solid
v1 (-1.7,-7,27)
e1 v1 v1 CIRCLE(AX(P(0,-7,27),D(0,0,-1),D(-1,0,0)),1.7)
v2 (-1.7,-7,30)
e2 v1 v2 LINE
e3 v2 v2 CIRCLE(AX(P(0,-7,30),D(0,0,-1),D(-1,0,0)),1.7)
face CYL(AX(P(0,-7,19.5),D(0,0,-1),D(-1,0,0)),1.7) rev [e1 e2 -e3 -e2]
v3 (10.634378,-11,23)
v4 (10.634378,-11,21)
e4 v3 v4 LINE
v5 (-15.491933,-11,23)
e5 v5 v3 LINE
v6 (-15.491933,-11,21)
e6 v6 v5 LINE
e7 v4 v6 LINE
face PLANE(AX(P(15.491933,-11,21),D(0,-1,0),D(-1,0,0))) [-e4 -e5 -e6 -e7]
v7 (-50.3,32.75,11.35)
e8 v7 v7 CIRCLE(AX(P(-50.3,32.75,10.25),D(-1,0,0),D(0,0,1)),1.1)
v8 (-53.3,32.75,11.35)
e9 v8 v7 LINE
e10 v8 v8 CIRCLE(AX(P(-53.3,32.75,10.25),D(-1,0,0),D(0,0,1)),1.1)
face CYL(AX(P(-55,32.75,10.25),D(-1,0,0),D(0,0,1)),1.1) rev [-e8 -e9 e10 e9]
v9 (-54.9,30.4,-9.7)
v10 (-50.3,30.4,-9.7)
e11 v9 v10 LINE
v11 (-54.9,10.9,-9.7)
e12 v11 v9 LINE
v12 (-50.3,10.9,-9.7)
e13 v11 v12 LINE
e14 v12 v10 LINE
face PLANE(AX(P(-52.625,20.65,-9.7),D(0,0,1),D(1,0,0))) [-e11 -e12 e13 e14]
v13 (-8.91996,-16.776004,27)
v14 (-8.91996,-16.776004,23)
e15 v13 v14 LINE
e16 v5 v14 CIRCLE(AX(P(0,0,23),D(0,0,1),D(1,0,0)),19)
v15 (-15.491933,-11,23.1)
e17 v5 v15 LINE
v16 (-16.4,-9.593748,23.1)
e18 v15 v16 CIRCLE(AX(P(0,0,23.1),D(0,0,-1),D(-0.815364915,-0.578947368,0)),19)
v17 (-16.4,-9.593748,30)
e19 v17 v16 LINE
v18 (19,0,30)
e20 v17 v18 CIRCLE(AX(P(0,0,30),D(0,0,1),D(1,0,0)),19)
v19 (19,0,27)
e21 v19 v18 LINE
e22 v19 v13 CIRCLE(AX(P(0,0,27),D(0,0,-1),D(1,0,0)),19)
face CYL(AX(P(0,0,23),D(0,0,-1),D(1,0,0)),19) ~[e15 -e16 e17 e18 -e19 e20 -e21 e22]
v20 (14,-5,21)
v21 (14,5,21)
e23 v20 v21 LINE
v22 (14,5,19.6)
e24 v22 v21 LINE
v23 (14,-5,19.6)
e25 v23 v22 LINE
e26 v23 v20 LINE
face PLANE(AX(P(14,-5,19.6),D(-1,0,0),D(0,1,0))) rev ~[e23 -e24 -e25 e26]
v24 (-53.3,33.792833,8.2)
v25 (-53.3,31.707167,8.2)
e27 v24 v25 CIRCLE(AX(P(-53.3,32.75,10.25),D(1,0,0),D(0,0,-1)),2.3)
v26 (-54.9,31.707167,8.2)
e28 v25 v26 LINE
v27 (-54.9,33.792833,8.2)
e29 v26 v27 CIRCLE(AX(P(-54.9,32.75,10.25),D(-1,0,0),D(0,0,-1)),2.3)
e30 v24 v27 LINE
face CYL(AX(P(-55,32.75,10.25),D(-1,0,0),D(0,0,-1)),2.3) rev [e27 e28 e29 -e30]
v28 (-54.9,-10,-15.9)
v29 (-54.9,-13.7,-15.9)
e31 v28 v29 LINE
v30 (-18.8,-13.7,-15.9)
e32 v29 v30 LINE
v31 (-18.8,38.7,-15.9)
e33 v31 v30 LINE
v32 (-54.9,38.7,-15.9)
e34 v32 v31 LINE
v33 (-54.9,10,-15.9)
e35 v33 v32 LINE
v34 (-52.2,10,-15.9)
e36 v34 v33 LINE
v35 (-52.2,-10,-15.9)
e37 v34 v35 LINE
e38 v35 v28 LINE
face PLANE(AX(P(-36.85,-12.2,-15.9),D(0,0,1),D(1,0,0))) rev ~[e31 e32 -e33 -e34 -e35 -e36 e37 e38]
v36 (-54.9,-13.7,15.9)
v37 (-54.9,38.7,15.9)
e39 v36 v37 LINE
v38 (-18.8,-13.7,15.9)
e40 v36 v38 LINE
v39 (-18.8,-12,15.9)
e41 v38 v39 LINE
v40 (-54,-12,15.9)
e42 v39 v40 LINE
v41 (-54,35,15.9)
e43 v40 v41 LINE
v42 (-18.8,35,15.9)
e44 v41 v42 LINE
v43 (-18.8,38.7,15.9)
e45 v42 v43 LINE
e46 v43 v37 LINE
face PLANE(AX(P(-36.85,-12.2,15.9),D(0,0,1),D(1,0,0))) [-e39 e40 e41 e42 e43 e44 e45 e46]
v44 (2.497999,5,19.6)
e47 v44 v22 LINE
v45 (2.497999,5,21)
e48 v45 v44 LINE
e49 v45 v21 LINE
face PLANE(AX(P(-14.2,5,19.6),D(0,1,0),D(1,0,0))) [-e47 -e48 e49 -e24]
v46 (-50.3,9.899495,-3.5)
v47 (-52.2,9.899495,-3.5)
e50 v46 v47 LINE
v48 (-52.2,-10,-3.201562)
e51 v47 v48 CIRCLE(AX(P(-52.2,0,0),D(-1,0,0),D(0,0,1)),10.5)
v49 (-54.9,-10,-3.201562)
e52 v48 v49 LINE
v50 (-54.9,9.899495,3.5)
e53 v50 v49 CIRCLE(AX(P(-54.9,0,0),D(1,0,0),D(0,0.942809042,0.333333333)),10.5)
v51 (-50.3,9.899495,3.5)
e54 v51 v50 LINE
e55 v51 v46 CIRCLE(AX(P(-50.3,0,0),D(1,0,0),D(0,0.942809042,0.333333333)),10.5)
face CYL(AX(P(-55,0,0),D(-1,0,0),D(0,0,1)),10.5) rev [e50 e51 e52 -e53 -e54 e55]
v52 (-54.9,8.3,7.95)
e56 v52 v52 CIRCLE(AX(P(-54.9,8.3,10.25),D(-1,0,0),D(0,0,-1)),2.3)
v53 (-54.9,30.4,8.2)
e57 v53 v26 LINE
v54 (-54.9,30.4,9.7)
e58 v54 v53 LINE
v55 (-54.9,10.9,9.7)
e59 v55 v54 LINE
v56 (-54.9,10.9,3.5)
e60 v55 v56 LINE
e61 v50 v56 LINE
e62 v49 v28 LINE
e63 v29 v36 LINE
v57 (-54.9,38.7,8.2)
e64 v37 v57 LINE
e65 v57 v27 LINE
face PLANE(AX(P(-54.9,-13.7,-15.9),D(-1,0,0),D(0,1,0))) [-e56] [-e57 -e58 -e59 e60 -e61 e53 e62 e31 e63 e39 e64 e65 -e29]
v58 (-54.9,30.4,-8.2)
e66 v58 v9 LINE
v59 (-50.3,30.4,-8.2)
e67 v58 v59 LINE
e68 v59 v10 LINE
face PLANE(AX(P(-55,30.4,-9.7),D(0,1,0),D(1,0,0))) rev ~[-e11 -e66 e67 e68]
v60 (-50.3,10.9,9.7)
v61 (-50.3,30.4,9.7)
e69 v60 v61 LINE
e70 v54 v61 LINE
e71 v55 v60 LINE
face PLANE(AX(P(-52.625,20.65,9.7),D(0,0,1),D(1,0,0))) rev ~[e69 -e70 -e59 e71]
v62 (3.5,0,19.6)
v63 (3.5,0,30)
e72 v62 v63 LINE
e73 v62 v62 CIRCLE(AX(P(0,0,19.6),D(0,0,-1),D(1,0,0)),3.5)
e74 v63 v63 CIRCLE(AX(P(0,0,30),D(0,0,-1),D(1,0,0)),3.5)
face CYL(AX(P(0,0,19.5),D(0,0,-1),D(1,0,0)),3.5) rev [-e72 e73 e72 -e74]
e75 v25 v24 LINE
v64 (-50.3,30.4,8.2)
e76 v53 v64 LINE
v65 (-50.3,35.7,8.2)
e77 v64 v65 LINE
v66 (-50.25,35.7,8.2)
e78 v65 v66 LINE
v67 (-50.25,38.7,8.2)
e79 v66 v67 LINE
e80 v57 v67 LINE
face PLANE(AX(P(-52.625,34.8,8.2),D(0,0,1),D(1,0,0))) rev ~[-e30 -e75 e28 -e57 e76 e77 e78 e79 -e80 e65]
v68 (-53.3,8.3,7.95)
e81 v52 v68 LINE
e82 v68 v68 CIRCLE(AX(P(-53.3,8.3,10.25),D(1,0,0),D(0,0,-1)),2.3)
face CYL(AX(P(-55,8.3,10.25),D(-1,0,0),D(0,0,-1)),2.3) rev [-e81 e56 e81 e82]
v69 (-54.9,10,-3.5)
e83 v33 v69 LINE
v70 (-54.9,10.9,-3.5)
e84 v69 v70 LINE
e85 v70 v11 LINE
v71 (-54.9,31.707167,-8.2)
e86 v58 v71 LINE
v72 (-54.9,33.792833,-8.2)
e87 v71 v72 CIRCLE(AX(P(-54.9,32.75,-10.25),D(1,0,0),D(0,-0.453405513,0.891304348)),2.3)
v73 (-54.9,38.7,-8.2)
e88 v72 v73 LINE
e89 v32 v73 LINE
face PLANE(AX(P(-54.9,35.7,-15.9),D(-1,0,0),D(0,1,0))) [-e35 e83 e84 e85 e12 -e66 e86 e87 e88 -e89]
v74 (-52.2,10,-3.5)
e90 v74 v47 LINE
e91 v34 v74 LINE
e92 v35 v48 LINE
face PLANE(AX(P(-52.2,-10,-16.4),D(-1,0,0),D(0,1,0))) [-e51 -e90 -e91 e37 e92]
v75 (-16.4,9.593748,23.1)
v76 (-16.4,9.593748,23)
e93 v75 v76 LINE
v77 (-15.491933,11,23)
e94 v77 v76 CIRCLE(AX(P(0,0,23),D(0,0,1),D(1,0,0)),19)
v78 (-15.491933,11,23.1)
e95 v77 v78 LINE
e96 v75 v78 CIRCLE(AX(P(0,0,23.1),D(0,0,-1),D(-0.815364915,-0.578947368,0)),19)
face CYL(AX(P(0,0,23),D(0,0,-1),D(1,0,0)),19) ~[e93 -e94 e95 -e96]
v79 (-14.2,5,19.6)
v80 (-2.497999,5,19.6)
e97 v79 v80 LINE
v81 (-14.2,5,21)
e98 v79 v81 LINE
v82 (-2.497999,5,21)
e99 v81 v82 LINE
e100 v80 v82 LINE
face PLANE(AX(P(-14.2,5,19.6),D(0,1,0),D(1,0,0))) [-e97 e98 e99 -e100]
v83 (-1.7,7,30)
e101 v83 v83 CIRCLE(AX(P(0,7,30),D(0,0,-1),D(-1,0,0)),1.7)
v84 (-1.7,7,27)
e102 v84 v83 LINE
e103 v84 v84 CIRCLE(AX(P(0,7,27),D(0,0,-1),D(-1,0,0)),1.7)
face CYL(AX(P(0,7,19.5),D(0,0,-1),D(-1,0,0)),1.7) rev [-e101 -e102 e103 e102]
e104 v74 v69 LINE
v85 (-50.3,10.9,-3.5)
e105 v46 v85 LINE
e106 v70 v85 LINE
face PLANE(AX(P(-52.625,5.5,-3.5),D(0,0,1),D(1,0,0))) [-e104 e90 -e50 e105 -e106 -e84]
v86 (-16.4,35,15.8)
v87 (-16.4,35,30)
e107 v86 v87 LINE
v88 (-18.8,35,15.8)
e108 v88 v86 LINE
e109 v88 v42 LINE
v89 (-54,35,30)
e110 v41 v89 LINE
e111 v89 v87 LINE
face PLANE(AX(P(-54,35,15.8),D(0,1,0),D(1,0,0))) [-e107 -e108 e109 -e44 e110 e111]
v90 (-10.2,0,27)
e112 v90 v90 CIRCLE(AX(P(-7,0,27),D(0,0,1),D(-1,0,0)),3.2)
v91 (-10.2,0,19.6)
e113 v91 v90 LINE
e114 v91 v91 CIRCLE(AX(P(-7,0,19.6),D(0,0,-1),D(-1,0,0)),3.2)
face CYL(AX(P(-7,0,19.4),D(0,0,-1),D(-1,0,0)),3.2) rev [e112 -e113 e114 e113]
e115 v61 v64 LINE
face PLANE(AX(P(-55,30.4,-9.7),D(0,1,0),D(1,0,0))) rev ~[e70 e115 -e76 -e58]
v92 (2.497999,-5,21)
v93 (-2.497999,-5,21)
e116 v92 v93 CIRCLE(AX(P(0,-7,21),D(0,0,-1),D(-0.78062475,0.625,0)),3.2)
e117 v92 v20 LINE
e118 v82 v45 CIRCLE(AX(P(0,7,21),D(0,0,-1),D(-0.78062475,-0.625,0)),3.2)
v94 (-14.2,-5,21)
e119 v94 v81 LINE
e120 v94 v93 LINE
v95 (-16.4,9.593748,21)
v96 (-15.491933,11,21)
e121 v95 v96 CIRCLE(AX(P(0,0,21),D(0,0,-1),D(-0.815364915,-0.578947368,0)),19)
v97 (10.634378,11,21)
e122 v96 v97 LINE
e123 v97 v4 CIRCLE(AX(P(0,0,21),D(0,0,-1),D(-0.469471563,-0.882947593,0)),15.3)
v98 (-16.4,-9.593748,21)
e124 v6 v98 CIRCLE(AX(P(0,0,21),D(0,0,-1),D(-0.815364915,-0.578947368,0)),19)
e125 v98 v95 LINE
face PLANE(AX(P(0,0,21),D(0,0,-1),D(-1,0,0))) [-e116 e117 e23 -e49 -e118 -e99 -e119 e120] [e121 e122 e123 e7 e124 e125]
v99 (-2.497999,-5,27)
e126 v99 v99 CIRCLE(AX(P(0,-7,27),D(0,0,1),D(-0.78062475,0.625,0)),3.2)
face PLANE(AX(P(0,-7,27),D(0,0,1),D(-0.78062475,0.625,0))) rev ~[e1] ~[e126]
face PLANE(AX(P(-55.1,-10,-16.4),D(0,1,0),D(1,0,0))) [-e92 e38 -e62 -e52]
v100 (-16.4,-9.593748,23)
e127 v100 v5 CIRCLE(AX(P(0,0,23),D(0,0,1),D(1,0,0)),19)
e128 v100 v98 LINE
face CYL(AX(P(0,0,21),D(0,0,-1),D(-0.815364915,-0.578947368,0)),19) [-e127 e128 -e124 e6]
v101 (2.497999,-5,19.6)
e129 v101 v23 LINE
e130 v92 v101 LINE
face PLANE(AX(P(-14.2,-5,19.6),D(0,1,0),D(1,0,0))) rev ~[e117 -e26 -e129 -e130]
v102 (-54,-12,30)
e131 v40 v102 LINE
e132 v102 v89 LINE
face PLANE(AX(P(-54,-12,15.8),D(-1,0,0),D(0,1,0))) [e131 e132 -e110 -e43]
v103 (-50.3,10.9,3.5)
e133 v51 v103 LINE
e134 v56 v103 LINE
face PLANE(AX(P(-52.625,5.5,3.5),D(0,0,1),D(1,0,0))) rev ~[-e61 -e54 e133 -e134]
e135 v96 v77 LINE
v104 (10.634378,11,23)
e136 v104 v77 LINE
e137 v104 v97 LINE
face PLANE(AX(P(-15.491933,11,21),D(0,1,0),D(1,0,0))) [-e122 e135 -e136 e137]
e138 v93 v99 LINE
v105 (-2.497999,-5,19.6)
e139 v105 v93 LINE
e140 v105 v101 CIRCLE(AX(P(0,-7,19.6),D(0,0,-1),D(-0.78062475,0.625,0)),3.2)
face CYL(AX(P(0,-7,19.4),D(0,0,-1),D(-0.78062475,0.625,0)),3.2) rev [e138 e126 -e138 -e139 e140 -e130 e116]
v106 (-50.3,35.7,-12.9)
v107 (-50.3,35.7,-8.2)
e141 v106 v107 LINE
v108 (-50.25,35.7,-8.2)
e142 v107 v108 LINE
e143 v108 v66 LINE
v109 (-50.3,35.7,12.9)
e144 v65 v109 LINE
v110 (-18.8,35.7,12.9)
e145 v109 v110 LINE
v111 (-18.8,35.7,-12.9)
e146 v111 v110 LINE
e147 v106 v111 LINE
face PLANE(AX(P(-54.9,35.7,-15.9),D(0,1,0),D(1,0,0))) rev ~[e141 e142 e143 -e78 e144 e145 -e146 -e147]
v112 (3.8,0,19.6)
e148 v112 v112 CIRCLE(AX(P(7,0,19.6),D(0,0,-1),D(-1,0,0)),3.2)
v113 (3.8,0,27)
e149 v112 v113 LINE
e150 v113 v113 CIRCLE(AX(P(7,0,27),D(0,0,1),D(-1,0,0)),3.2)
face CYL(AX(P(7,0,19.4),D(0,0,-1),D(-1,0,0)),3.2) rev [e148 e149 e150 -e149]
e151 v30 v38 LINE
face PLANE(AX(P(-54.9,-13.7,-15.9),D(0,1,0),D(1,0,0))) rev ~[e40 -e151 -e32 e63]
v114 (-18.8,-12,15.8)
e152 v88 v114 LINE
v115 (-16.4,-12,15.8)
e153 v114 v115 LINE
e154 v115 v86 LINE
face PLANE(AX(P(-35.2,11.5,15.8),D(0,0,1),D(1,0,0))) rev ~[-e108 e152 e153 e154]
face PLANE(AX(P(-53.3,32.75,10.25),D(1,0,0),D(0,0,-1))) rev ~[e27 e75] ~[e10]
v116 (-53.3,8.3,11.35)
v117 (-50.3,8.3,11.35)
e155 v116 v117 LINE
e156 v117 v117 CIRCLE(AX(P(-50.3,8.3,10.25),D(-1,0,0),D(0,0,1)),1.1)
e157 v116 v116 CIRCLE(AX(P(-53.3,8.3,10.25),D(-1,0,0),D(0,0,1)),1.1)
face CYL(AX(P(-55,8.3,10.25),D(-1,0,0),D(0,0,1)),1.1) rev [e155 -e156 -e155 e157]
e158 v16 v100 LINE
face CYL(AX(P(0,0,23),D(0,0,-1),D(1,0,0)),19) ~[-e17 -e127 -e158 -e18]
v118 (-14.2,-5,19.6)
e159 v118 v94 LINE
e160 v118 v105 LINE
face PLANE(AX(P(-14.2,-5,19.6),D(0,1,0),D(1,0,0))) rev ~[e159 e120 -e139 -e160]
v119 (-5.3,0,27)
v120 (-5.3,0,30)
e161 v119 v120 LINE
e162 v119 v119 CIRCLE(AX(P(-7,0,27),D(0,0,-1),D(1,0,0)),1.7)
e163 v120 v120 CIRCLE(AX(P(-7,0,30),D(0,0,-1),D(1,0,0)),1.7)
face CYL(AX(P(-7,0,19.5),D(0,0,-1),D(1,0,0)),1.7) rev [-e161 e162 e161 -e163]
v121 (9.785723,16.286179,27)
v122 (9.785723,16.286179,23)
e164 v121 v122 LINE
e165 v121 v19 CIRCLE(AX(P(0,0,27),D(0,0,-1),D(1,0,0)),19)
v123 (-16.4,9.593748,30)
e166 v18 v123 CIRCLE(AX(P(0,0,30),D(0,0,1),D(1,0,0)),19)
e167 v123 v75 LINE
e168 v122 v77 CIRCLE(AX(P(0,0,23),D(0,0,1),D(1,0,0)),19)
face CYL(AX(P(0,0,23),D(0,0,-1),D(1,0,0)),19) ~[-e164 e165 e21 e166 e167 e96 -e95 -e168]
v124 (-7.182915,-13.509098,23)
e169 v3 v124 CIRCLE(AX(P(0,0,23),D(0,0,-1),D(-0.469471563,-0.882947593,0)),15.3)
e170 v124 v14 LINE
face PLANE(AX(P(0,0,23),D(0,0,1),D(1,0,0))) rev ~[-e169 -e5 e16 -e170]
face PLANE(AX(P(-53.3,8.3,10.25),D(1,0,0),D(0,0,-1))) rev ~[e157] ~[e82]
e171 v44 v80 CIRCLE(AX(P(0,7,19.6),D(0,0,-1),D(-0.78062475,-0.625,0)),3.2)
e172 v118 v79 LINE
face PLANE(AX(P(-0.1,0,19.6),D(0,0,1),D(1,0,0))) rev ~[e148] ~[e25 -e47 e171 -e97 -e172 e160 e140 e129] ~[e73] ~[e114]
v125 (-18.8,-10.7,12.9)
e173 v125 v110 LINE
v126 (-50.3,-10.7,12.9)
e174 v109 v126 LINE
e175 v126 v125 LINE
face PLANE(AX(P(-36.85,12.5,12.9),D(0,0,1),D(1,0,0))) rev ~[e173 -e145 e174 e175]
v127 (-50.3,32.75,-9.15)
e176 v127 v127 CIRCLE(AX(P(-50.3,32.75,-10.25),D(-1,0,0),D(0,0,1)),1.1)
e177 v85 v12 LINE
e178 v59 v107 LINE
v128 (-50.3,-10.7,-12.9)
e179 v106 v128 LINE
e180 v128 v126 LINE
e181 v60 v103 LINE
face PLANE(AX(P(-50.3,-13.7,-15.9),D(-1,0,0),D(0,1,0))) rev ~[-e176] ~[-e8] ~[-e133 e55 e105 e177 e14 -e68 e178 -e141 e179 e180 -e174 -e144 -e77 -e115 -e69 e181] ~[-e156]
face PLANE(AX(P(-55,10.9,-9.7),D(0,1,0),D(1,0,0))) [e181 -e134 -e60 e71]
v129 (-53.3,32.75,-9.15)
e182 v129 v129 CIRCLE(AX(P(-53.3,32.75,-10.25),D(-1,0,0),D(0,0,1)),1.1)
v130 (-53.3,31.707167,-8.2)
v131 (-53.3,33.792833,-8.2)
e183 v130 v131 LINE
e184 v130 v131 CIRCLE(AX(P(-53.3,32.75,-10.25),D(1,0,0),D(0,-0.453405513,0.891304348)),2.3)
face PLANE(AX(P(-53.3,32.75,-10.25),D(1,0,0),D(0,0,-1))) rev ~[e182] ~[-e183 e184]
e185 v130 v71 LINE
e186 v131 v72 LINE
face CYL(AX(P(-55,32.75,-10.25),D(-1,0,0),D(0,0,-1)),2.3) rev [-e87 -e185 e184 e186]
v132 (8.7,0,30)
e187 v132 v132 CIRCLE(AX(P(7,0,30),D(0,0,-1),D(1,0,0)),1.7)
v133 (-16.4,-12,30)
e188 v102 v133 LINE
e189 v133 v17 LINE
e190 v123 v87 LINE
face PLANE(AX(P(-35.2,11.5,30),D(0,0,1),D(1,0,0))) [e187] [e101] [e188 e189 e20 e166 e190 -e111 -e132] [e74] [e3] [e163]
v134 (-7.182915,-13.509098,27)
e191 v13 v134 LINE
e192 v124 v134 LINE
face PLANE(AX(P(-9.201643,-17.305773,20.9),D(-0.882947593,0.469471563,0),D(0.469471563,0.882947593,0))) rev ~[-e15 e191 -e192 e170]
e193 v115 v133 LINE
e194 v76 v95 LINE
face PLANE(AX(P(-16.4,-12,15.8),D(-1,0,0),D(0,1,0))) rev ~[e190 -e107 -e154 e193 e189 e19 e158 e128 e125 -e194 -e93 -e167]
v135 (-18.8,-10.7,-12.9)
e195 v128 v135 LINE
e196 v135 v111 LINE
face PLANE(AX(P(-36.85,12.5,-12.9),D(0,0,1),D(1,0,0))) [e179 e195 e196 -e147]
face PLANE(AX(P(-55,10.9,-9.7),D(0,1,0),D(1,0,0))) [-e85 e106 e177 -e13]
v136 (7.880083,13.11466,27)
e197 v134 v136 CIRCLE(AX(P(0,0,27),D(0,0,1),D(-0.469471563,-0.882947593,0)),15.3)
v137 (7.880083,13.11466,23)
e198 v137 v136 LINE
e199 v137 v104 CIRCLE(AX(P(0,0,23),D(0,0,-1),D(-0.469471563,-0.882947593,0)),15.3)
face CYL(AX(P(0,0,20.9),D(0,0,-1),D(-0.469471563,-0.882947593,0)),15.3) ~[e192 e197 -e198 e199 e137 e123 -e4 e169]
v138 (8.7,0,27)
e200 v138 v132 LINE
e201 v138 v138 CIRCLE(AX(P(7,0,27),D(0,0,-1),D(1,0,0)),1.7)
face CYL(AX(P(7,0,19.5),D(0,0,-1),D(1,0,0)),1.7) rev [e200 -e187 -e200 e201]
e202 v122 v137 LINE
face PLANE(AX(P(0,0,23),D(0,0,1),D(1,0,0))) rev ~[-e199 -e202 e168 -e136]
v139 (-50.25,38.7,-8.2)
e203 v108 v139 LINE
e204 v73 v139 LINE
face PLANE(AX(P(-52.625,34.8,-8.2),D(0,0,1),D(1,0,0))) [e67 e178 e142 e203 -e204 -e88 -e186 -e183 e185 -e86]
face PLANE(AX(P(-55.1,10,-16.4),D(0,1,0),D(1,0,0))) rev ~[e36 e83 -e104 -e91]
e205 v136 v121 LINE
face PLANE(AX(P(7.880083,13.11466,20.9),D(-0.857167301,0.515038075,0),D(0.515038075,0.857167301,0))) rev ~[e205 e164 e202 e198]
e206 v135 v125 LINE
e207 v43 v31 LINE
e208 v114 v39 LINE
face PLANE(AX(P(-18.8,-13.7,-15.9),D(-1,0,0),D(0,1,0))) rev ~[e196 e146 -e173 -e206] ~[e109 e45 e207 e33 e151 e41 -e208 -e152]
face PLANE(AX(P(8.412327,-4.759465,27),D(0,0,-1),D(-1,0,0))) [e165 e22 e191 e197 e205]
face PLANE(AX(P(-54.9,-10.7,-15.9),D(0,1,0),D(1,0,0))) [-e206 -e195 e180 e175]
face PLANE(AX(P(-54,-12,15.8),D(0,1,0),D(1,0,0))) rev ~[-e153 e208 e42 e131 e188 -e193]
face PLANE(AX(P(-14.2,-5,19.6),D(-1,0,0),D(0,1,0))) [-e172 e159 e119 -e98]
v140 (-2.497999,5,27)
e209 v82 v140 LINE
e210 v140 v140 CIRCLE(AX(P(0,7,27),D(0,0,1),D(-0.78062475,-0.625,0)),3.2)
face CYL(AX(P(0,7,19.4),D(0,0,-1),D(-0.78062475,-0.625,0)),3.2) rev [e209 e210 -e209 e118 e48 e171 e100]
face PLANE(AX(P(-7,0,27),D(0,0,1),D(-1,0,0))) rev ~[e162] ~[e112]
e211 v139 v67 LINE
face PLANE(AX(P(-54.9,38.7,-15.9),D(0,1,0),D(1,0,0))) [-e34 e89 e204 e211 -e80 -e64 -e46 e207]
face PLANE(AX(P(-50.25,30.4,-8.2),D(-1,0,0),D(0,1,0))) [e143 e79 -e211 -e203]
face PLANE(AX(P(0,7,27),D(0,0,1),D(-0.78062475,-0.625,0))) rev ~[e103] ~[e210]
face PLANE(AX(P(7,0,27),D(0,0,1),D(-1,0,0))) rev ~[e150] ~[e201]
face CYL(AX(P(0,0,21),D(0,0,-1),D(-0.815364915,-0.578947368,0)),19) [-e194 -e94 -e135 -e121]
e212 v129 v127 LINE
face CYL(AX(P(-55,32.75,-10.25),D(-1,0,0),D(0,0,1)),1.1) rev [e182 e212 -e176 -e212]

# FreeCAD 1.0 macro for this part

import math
import FreeCAD as App
import Part
import Sketcher
Q = App.Units.Quantity

doc = App.newDocument("Part")
body = doc.addObject("PartDesign::Body", "Body")

# Sketch on XY plane
sketch1 = body.newObject("Sketcher::SketchObject", "Sketch")
sketch1.AttachmentSupport = (doc.getObject("XY_Plane"), [""])
sketch1.MapMode = "FlatFace"
sketch1.AttachmentOffset = App.Placement(App.Vector(0, 0, 23), App.Rotation())
sketch1.addGeometry(Part.Circle(App.Vector(0, 0, 0), App.Vector(0, 0, 1), 19), False)
sketch1.addConstraint([
    Sketcher.Constraint("Coincident", 0, 3, -1, 1),
    Sketcher.Constraint("Diameter", 0, Q("38 mm")),
])
pad1 = body.newObject("PartDesign::Pad", "Pad")
pad1.Profile = sketch1
pad1.Length = 7

# Sketch on XY plane
sketch2 = body.newObject("Sketcher::SketchObject", "Sketch001")
sketch2.AttachmentSupport = (doc.getObject("XY_Plane"), [""])
sketch2.MapMode = "FlatFace"
sketch2.AttachmentOffset = App.Placement(App.Vector(0, 0, 21), App.Rotation())
sketch2.addGeometry([
    Part.LineSegment(App.Vector(15.491933, 11, 0), App.Vector(-15.491933, 11, 0)),
    Part.ArcOfCircle(Part.Circle(App.Vector(0, 0, 0), App.Vector(0, 0, 1), 19), math.radians(144.62346), math.radians(215.37654)),
    Part.LineSegment(App.Vector(-15.491933, -11, 0), App.Vector(15.491933, -11, 0)),
    Part.ArcOfCircle(Part.Circle(App.Vector(0, 0, 0), App.Vector(0, 0, 1), 19), math.radians(-35.37654), math.radians(35.37654)),
], False)
sketch2.addConstraint([
    Sketcher.Constraint("Coincident", 0, 2, 1, 1),
    Sketcher.Constraint("Coincident", 1, 2, 2, 1),
    Sketcher.Constraint("Coincident", 2, 2, 3, 1),
    Sketcher.Constraint("Coincident", 3, 2, 0, 1),
    Sketcher.Constraint("Horizontal", 0),
    Sketcher.Constraint("Horizontal", 2),
    Sketcher.Constraint("Coincident", 1, 3, -1, 1),
    Sketcher.Constraint("Coincident", 3, 3, -1, 1),
    Sketcher.Constraint("Equal", 1, 3),
    Sketcher.Constraint("Vertical", 0, 2, 1, 2),
    Sketcher.Constraint("Radius", 1, Q("19 mm")),
    Sketcher.Constraint("DistanceY", -1, 1, 0, 2, Q("11 mm")),
])
pad2 = body.newObject("PartDesign::Pad", "Pad001")
pad2.Profile = sketch2
pad2.Length = 2.1

# Sketch on XY plane
sketch3 = body.newObject("Sketcher::SketchObject", "Sketch002")
sketch3.AttachmentSupport = (doc.getObject("XY_Plane"), [""])
sketch3.MapMode = "FlatFace"
sketch3.AttachmentOffset = App.Placement(App.Vector(0, 0, 19.6), App.Rotation())
sketch3.addGeometry([
    Part.LineSegment(App.Vector(-14.2, 5, 0), App.Vector(-14.2, -5, 0)),
    Part.LineSegment(App.Vector(-14.2, -5, 0), App.Vector(14, -5, 0)),
    Part.LineSegment(App.Vector(14, -5, 0), App.Vector(14, 5, 0)),
    Part.LineSegment(App.Vector(14, 5, 0), App.Vector(-14.2, 5, 0)),
], False)
sketch3.addConstraint([
    Sketcher.Constraint("Coincident", 0, 2, 1, 1),
    Sketcher.Constraint("Coincident", 1, 2, 2, 1),
    Sketcher.Constraint("Coincident", 2, 2, 3, 1),
    Sketcher.Constraint("Coincident", 3, 2, 0, 1),
    Sketcher.Constraint("Vertical", 0),
    Sketcher.Constraint("Horizontal", 1),
    Sketcher.Constraint("Vertical", 2),
    Sketcher.Constraint("Horizontal", 3),
    Sketcher.Constraint("DistanceY", 0, 2, 0, 1, Q("10 mm")),
    Sketcher.Constraint("DistanceX", 1, 1, 1, 2, Q("28.2 mm")),
    Sketcher.Constraint("DistanceY", 0, 2, -1, 1, Q("5 mm")),
    Sketcher.Constraint("DistanceX", -1, 1, 1, 2, Q("14 mm")),
])
pad3 = body.newObject("PartDesign::Pad", "Pad002")
pad3.Profile = sketch3
pad3.Length = 1.5

# Sketch on XY plane
sketch4 = body.newObject("Sketcher::SketchObject", "Sketch003")
sketch4.AttachmentSupport = (doc.getObject("XY_Plane"), [""])
sketch4.MapMode = "FlatFace"
sketch4.AttachmentOffset = App.Placement(App.Vector(0, 0, 15.8), App.Rotation())
sketch4.addGeometry([
    Part.LineSegment(App.Vector(-54, 35, 0), App.Vector(-54, -12, 0)),
    Part.LineSegment(App.Vector(-54, -12, 0), App.Vector(-16.4, -12, 0)),
    Part.LineSegment(App.Vector(-16.4, -12, 0), App.Vector(-16.4, 35, 0)),
    Part.LineSegment(App.Vector(-16.4, 35, 0), App.Vector(-54, 35, 0)),
], False)
sketch4.addConstraint([
    Sketcher.Constraint("Coincident", 0, 2, 1, 1),
    Sketcher.Constraint("Coincident", 1, 2, 2, 1),
    Sketcher.Constraint("Coincident", 2, 2, 3, 1),
    Sketcher.Constraint("Coincident", 3, 2, 0, 1),
    Sketcher.Constraint("Vertical", 0),
    Sketcher.Constraint("Horizontal", 1),
    Sketcher.Constraint("Vertical", 2),
    Sketcher.Constraint("Horizontal", 3),
    Sketcher.Constraint("DistanceY", 0, 2, 0, 1, Q("47 mm")),
    Sketcher.Constraint("DistanceX", 1, 1, 1, 2, Q("37.6 mm")),
    Sketcher.Constraint("DistanceX", 0, 2, -1, 1, Q("54 mm")),
    Sketcher.Constraint("DistanceY", 0, 2, -1, 1, Q("12 mm")),
])
pad4 = body.newObject("PartDesign::Pad", "Pad003")
pad4.Profile = sketch4
pad4.Length = 14.2

# Sketch on XY plane
sketch5 = body.newObject("Sketcher::SketchObject", "Sketch004")
sketch5.AttachmentSupport = (doc.getObject("XY_Plane"), [""])
sketch5.MapMode = "FlatFace"
sketch5.AttachmentOffset = App.Placement(App.Vector(0, 0, -15.9), App.Rotation())
sketch5.addGeometry([
    Part.LineSegment(App.Vector(-54.9, -10.7, 0), App.Vector(-54.9, -13.7, 0)),
    Part.LineSegment(App.Vector(-54.9, -13.7, 0), App.Vector(-18.8, -13.7, 0)),
    Part.LineSegment(App.Vector(-18.8, -13.7, 0), App.Vector(-18.8, -10.7, 0)),
    Part.LineSegment(App.Vector(-18.8, -10.7, 0), App.Vector(-54.9, -10.7, 0)),
], False)
sketch5.addConstraint([
    Sketcher.Constraint("Coincident", 0, 2, 1, 1),
    Sketcher.Constraint("Coincident", 1, 2, 2, 1),
    Sketcher.Constraint("Coincident", 2, 2, 3, 1),
    Sketcher.Constraint("Coincident", 3, 2, 0, 1),
    Sketcher.Constraint("Vertical", 0),
    Sketcher.Constraint("Horizontal", 1),
    Sketcher.Constraint("Vertical", 2),
    Sketcher.Constraint("Horizontal", 3),
    Sketcher.Constraint("DistanceY", 0, 2, 0, 1, Q("3 mm")),
    Sketcher.Constraint("DistanceX", 1, 1, 1, 2, Q("36.1 mm")),
    Sketcher.Constraint("DistanceX", 0, 2, -1, 1, Q("54.9 mm")),
    Sketcher.Constraint("DistanceY", 0, 2, -1, 1, Q("13.7 mm")),
])
pad5 = body.newObject("PartDesign::Pad", "Pad004")
pad5.Profile = sketch5
pad5.Length = 31.8
body2 = doc.addObject("PartDesign::Body", "Body001")

# Sketch on XY plane
sketch6 = body2.newObject("Sketcher::SketchObject", "Sketch005")
sketch6.AttachmentSupport = (doc.getObject("XY_Plane001"), [""])
sketch6.MapMode = "FlatFace"
sketch6.AttachmentOffset = App.Placement(App.Vector(0, 0, -15.9), App.Rotation())
sketch6.addGeometry([
    Part.LineSegment(App.Vector(-54.9, 38.7, 0), App.Vector(-54.9, 35.7, 0)),
    Part.LineSegment(App.Vector(-54.9, 35.7, 0), App.Vector(-18.8, 35.7, 0)),
    Part.LineSegment(App.Vector(-18.8, 35.7, 0), App.Vector(-18.8, 38.7, 0)),
    Part.LineSegment(App.Vector(-18.8, 38.7, 0), App.Vector(-54.9, 38.7, 0)),
], False)
sketch6.addConstraint([
    Sketcher.Constraint("Coincident", 0, 2, 1, 1),
    Sketcher.Constraint("Coincident", 1, 2, 2, 1),
    Sketcher.Constraint("Coincident", 2, 2, 3, 1),
    Sketcher.Constraint("Coincident", 3, 2, 0, 1),
    Sketcher.Constraint("Vertical", 0),
    Sketcher.Constraint("Horizontal", 1),
    Sketcher.Constraint("Vertical", 2),
    Sketcher.Constraint("Horizontal", 3),
    Sketcher.Constraint("DistanceY", 0, 2, 0, 1, Q("3 mm")),
    Sketcher.Constraint("DistanceX", 1, 1, 1, 2, Q("36.1 mm")),
    Sketcher.Constraint("DistanceX", 0, 2, -1, 1, Q("54.9 mm")),
    Sketcher.Constraint("DistanceY", -1, 1, 0, 2, Q("35.7 mm")),
])
pad6 = body2.newObject("PartDesign::Pad", "Pad005")
pad6.Profile = sketch6
pad6.Length = 31.8
body.AllowCompound = True
doc.recompute()

boolean = body.newObject("PartDesign::Boolean", "Boolean")
boolean.Type = "Fuse"
boolean.addObjects([body2])

# Sketch on XY plane
sketch7 = body.newObject("Sketcher::SketchObject", "Sketch006")
sketch7.AttachmentSupport = (doc.getObject("XY_Plane"), [""])
sketch7.MapMode = "FlatFace"
sketch7.AttachmentOffset = App.Placement(App.Vector(0, 0, -15.9), App.Rotation())
sketch7.addGeometry([
    Part.LineSegment(App.Vector(-54.9, 38.7, 0), App.Vector(-54.9, -13.7, 0)),
    Part.LineSegment(App.Vector(-54.9, -13.7, 0), App.Vector(-18.8, -13.7, 0)),
    Part.LineSegment(App.Vector(-18.8, -13.7, 0), App.Vector(-18.8, 38.7, 0)),
    Part.LineSegment(App.Vector(-18.8, 38.7, 0), App.Vector(-54.9, 38.7, 0)),
], False)
sketch7.addConstraint([
    Sketcher.Constraint("Coincident", 0, 2, 1, 1),
    Sketcher.Constraint("Coincident", 1, 2, 2, 1),
    Sketcher.Constraint("Coincident", 2, 2, 3, 1),
    Sketcher.Constraint("Coincident", 3, 2, 0, 1),
    Sketcher.Constraint("Vertical", 0),
    Sketcher.Constraint("Horizontal", 1),
    Sketcher.Constraint("Vertical", 2),
    Sketcher.Constraint("Horizontal", 3),
    Sketcher.Constraint("DistanceX", 1, 1, 1, 2, Q("36.1 mm")),
    Sketcher.Constraint("DistanceY", 0, 2, 0, 1, Q("52.4 mm")),
    Sketcher.Constraint("DistanceX", 0, 2, -1, 1, Q("54.9 mm")),
    Sketcher.Constraint("DistanceY", 0, 2, -1, 1, Q("13.7 mm")),
])
pad7 = body.newObject("PartDesign::Pad", "Pad006")
pad7.Profile = sketch7
pad7.Length = 3

# Sketch on XY plane
sketch8 = body.newObject("Sketcher::SketchObject", "Sketch007")
sketch8.AttachmentSupport = (doc.getObject("XY_Plane"), [""])
sketch8.MapMode = "FlatFace"
sketch8.AttachmentOffset = App.Placement(App.Vector(0, 0, 12.9), App.Rotation())
sketch8.addGeometry([
    Part.LineSegment(App.Vector(-54.9, 38.7, 0), App.Vector(-54.9, -13.7, 0)),
    Part.LineSegment(App.Vector(-54.9, -13.7, 0), App.Vector(-18.8, -13.7, 0)),
    Part.LineSegment(App.Vector(-18.8, -13.7, 0), App.Vector(-18.8, 38.7, 0)),
    Part.LineSegment(App.Vector(-18.8, 38.7, 0), App.Vector(-54.9, 38.7, 0)),
], False)
sketch8.addConstraint([
    Sketcher.Constraint("Coincident", 0, 2, 1, 1),
    Sketcher.Constraint("Coincident", 1, 2, 2, 1),
    Sketcher.Constraint("Coincident", 2, 2, 3, 1),
    Sketcher.Constraint("Coincident", 3, 2, 0, 1),
    Sketcher.Constraint("Vertical", 0),
    Sketcher.Constraint("Horizontal", 1),
    Sketcher.Constraint("Vertical", 2),
    Sketcher.Constraint("Horizontal", 3),
    Sketcher.Constraint("DistanceX", 1, 1, 1, 2, Q("36.1 mm")),
    Sketcher.Constraint("DistanceY", 0, 2, 0, 1, Q("52.4 mm")),
    Sketcher.Constraint("DistanceX", 0, 2, -1, 1, Q("54.9 mm")),
    Sketcher.Constraint("DistanceY", 0, 2, -1, 1, Q("13.7 mm")),
])
pad8 = body.newObject("PartDesign::Pad", "Pad007")
pad8.Profile = sketch8
pad8.Length = 3

# Sketch on XY plane
sketch9 = body.newObject("Sketcher::SketchObject", "Sketch008")
sketch9.AttachmentSupport = (doc.getObject("XY_Plane"), [""])
sketch9.MapMode = "FlatFace"
sketch9.AttachmentOffset = App.Placement(App.Vector(0, 0, -15.9), App.Rotation())
sketch9.addGeometry([
    Part.LineSegment(App.Vector(-54.9, 38.7, 0), App.Vector(-54.9, -13.7, 0)),
    Part.LineSegment(App.Vector(-54.9, -13.7, 0), App.Vector(-50.3, -13.7, 0)),
    Part.LineSegment(App.Vector(-50.3, -13.7, 0), App.Vector(-50.3, 38.7, 0)),
    Part.LineSegment(App.Vector(-50.3, 38.7, 0), App.Vector(-54.9, 38.7, 0)),
], False)
sketch9.addConstraint([
    Sketcher.Constraint("Coincident", 0, 2, 1, 1),
    Sketcher.Constraint("Coincident", 1, 2, 2, 1),
    Sketcher.Constraint("Coincident", 2, 2, 3, 1),
    Sketcher.Constraint("Coincident", 3, 2, 0, 1),
    Sketcher.Constraint("Vertical", 0),
    Sketcher.Constraint("Horizontal", 1),
    Sketcher.Constraint("Vertical", 2),
    Sketcher.Constraint("Horizontal", 3),
    Sketcher.Constraint("DistanceX", 1, 1, 1, 2, Q("4.6 mm")),
    Sketcher.Constraint("DistanceY", 0, 2, 0, 1, Q("52.4 mm")),
    Sketcher.Constraint("DistanceX", 0, 2, -1, 1, Q("54.9 mm")),
    Sketcher.Constraint("DistanceY", 0, 2, -1, 1, Q("13.7 mm")),
])
pad9 = body.newObject("PartDesign::Pad", "Pad008")
pad9.Profile = sketch9
pad9.Length = 31.8

# Sketch on YZ plane
sketch10 = body.newObject("Sketcher::SketchObject", "Sketch009")
sketch10.AttachmentSupport = (doc.getObject("YZ_Plane"), [""])
sketch10.MapMode = "FlatFace"
sketch10.AttachmentOffset = App.Placement(App.Vector(0, 0, -55), App.Rotation())
sketch10.addGeometry(Part.Circle(App.Vector(0, 0, 0), App.Vector(0, 0, 1), 10.5), False)
sketch10.addConstraint([
    Sketcher.Constraint("Coincident", 0, 3, -1, 1),
    Sketcher.Constraint("Diameter", 0, Q("21 mm")),
])
pocket1 = body.newObject("PartDesign::Pocket", "Pocket")
pocket1.Profile = sketch10
pocket1.Length = 4.8
pocket1.Reversed = True

# Sketch on XY plane
sketch11 = body.newObject("Sketcher::SketchObject", "Sketch010")
sketch11.AttachmentSupport = (doc.getObject("XY_Plane"), [""])
sketch11.MapMode = "FlatFace"
sketch11.AttachmentOffset = App.Placement(App.Vector(0, 0, -9.7), App.Rotation())
sketch11.addGeometry([
    Part.LineSegment(App.Vector(-55, 30.4, 0), App.Vector(-55, 10.9, 0)),
    Part.LineSegment(App.Vector(-55, 10.9, 0), App.Vector(-50.25, 10.9, 0)),
    Part.LineSegment(App.Vector(-50.25, 10.9, 0), App.Vector(-50.25, 30.4, 0)),
    Part.LineSegment(App.Vector(-50.25, 30.4, 0), App.Vector(-55, 30.4, 0)),
], False)
sketch11.addConstraint([
    Sketcher.Constraint("Coincident", 0, 2, 1, 1),
    Sketcher.Constraint("Coincident", 1, 2, 2, 1),
    Sketcher.Constraint("Coincident", 2, 2, 3, 1),
    Sketcher.Constraint("Coincident", 3, 2, 0, 1),
    Sketcher.Constraint("Vertical", 0),
    Sketcher.Constraint("Horizontal", 1),
    Sketcher.Constraint("Vertical", 2),
    Sketcher.Constraint("Horizontal", 3),
    Sketcher.Constraint("DistanceY", 0, 2, 0, 1, Q("19.5 mm")),
    Sketcher.Constraint("DistanceX", 0, 2, -1, 1, Q("55 mm")),
    Sketcher.Constraint("DistanceX", 1, 1, 1, 2, Q("4.75 mm")),
    Sketcher.Constraint("DistanceY", -1, 1, 0, 2, Q("10.9 mm")),
])
pocket2 = body.newObject("PartDesign::Pocket", "Pocket001")
pocket2.Profile = sketch11
pocket2.Length = 19.4
pocket2.Reversed = True

# Sketch on XY plane
sketch12 = body.newObject("Sketcher::SketchObject", "Sketch011")
sketch12.AttachmentSupport = (doc.getObject("XY_Plane"), [""])
sketch12.MapMode = "FlatFace"
sketch12.AttachmentOffset = App.Placement(App.Vector(0, 0, -8.2), App.Rotation())
sketch12.addGeometry([
    Part.LineSegment(App.Vector(-55, 39.2, 0), App.Vector(-55, 30.4, 0)),
    Part.LineSegment(App.Vector(-55, 30.4, 0), App.Vector(-50.25, 30.4, 0)),
    Part.LineSegment(App.Vector(-50.25, 30.4, 0), App.Vector(-50.25, 39.2, 0)),
    Part.LineSegment(App.Vector(-50.25, 39.2, 0), App.Vector(-55, 39.2, 0)),
], False)
sketch12.addConstraint([
    Sketcher.Constraint("Coincident", 0, 2, 1, 1),
    Sketcher.Constraint("Coincident", 1, 2, 2, 1),
    Sketcher.Constraint("Coincident", 2, 2, 3, 1),
    Sketcher.Constraint("Coincident", 3, 2, 0, 1),
    Sketcher.Constraint("Vertical", 0),
    Sketcher.Constraint("Horizontal", 1),
    Sketcher.Constraint("Vertical", 2),
    Sketcher.Constraint("Horizontal", 3),
    Sketcher.Constraint("DistanceY", 0, 2, 0, 1, Q("8.8 mm")),
    Sketcher.Constraint("DistanceX", 0, 2, -1, 1, Q("55 mm")),
    Sketcher.Constraint("DistanceX", 1, 1, 1, 2, Q("4.75 mm")),
    Sketcher.Constraint("DistanceY", -1, 1, 0, 2, Q("30.4 mm")),
])
pocket3 = body.newObject("PartDesign::Pocket", "Pocket002")
pocket3.Profile = sketch12
pocket3.Length = 16.4
pocket3.Reversed = True

# Sketch on XY plane
sketch13 = body.newObject("Sketcher::SketchObject", "Sketch012")
sketch13.AttachmentSupport = (doc.getObject("XY_Plane"), [""])
sketch13.MapMode = "FlatFace"
sketch13.AttachmentOffset = App.Placement(App.Vector(0, 0, -3.5), App.Rotation())
sketch13.addGeometry([
    Part.LineSegment(App.Vector(-55, 11, 0), App.Vector(-55, 0, 0)),
    Part.LineSegment(App.Vector(-55, 0, 0), App.Vector(-50.25, 0, 0)),
    Part.LineSegment(App.Vector(-50.25, 0, 0), App.Vector(-50.25, 11, 0)),
    Part.LineSegment(App.Vector(-50.25, 11, 0), App.Vector(-55, 11, 0)),
], False)
sketch13.addConstraint([
    Sketcher.Constraint("Coincident", 0, 2, 1, 1),
    Sketcher.Constraint("Coincident", 1, 2, 2, 1),
    Sketcher.Constraint("Coincident", 2, 2, 3, 1),
    Sketcher.Constraint("Coincident", 3, 2, 0, 1),
    Sketcher.Constraint("Vertical", 0),
    Sketcher.Constraint("Horizontal", 1),
    Sketcher.Constraint("Vertical", 2),
    Sketcher.Constraint("Horizontal", 3),
    Sketcher.Constraint("PointOnObject", 0, 2, -1),
    Sketcher.Constraint("DistanceY", 0, 2, 0, 1, Q("11 mm")),
    Sketcher.Constraint("DistanceX", 0, 2, -1, 1, Q("55 mm")),
    Sketcher.Constraint("DistanceX", 1, 1, 1, 2, Q("4.75 mm")),
])
pocket4 = body.newObject("PartDesign::Pocket", "Pocket003")
pocket4.Profile = sketch13
pocket4.Length = 7
pocket4.Reversed = True

# Sketch on XY plane
sketch14 = body.newObject("Sketcher::SketchObject", "Sketch013")
sketch14.AttachmentSupport = (doc.getObject("XY_Plane"), [""])
sketch14.MapMode = "FlatFace"
sketch14.AttachmentOffset = App.Placement(App.Vector(0, 0, -16.4), App.Rotation())
sketch14.addGeometry([
    Part.LineSegment(App.Vector(-55.1, 10, 0), App.Vector(-55.1, -10, 0)),
    Part.LineSegment(App.Vector(-55.1, -10, 0), App.Vector(-52.2, -10, 0)),
    Part.LineSegment(App.Vector(-52.2, -10, 0), App.Vector(-52.2, 10, 0)),
    Part.LineSegment(App.Vector(-52.2, 10, 0), App.Vector(-55.1, 10, 0)),
], False)
sketch14.addConstraint([
    Sketcher.Constraint("Coincident", 0, 2, 1, 1),
    Sketcher.Constraint("Coincident", 1, 2, 2, 1),
    Sketcher.Constraint("Coincident", 2, 2, 3, 1),
    Sketcher.Constraint("Coincident", 3, 2, 0, 1),
    Sketcher.Constraint("Vertical", 0),
    Sketcher.Constraint("Horizontal", 1),
    Sketcher.Constraint("Vertical", 2),
    Sketcher.Constraint("Horizontal", 3),
    Sketcher.Constraint("DistanceY", 0, 2, 0, 1, Q("20 mm")),
    Sketcher.Constraint("DistanceX", 1, 1, 1, 2, Q("2.9 mm")),
    Sketcher.Constraint("DistanceY", 0, 2, -1, 1, Q("10 mm")),
    Sketcher.Constraint("DistanceX", 0, 2, -1, 1, Q("55.1 mm")),
])
pocket5 = body.newObject("PartDesign::Pocket", "Pocket004")
pocket5.Profile = sketch14
pocket5.Length = 16.4
pocket5.Reversed = True

# Sketch on YZ plane
sketch15 = body.newObject("Sketcher::SketchObject", "Sketch014")
sketch15.AttachmentSupport = (doc.getObject("YZ_Plane"), [""])
sketch15.MapMode = "FlatFace"
sketch15.AttachmentOffset = App.Placement(App.Vector(0, 0, -55), App.Rotation())
sketch15.addGeometry(Part.Circle(App.Vector(8.3, 10.25, 0), App.Vector(0, 0, 1), 1.1), False)
sketch15.addConstraint([
    Sketcher.Constraint("Diameter", 0, Q("2.2 mm")),
    Sketcher.Constraint("DistanceX", -1, 1, 0, 3, Q("8.3 mm")),
    Sketcher.Constraint("DistanceY", -1, 1, 0, 3, Q("10.25 mm")),
])
pocket6 = body.newObject("PartDesign::Pocket", "Pocket005")
pocket6.Profile = sketch15
pocket6.Length = 4.8
pocket6.Reversed = True

# Sketch on YZ plane
sketch16 = body.newObject("Sketcher::SketchObject", "Sketch015")
sketch16.AttachmentSupport = (doc.getObject("YZ_Plane"), [""])
sketch16.MapMode = "FlatFace"
sketch16.AttachmentOffset = App.Placement(App.Vector(0, 0, -55), App.Rotation())
sketch16.addGeometry(Part.Circle(App.Vector(8.3, 10.25, 0), App.Vector(0, 0, 1), 2.3), False)
sketch16.addConstraint([
    Sketcher.Constraint("Diameter", 0, Q("4.6 mm")),
    Sketcher.Constraint("DistanceX", -1, 1, 0, 3, Q("8.3 mm")),
    Sketcher.Constraint("DistanceY", -1, 1, 0, 3, Q("10.25 mm")),
])
pocket7 = body.newObject("PartDesign::Pocket", "Pocket006")
pocket7.Profile = sketch16
pocket7.Length = 1.7
pocket7.Reversed = True

# Sketch on YZ plane
sketch17 = body.newObject("Sketcher::SketchObject", "Sketch016")
sketch17.AttachmentSupport = (doc.getObject("YZ_Plane"), [""])
sketch17.MapMode = "FlatFace"
sketch17.AttachmentOffset = App.Placement(App.Vector(0, 0, -55), App.Rotation())
sketch17.addGeometry(Part.Circle(App.Vector(32.75, -10.25, 0), App.Vector(0, 0, 1), 1.1), False)
sketch17.addConstraint([
    Sketcher.Constraint("Diameter", 0, Q("2.2 mm")),
    Sketcher.Constraint("DistanceX", -1, 1, 0, 3, Q("32.75 mm")),
    Sketcher.Constraint("DistanceY", 0, 3, -1, 1, Q("10.25 mm")),
])
pocket8 = body.newObject("PartDesign::Pocket", "Pocket007")
pocket8.Profile = sketch17
pocket8.Length = 4.8
pocket8.Reversed = True

# Sketch on YZ plane
sketch18 = body.newObject("Sketcher::SketchObject", "Sketch017")
sketch18.AttachmentSupport = (doc.getObject("YZ_Plane"), [""])
sketch18.MapMode = "FlatFace"
sketch18.AttachmentOffset = App.Placement(App.Vector(0, 0, -55), App.Rotation())
sketch18.addGeometry(Part.Circle(App.Vector(32.75, -10.25, 0), App.Vector(0, 0, 1), 2.3), False)
sketch18.addConstraint([
    Sketcher.Constraint("Diameter", 0, Q("4.6 mm")),
    Sketcher.Constraint("DistanceX", -1, 1, 0, 3, Q("32.75 mm")),
    Sketcher.Constraint("DistanceY", 0, 3, -1, 1, Q("10.25 mm")),
])
pocket9 = body.newObject("PartDesign::Pocket", "Pocket008")
pocket9.Profile = sketch18
pocket9.Length = 1.7
pocket9.Reversed = True

# Sketch on YZ plane
sketch19 = body.newObject("Sketcher::SketchObject", "Sketch018")
sketch19.AttachmentSupport = (doc.getObject("YZ_Plane"), [""])
sketch19.MapMode = "FlatFace"
sketch19.AttachmentOffset = App.Placement(App.Vector(0, 0, -55), App.Rotation())
sketch19.addGeometry(Part.Circle(App.Vector(32.75, 10.25, 0), App.Vector(0, 0, 1), 1.1), False)
sketch19.addConstraint([
    Sketcher.Constraint("Diameter", 0, Q("2.2 mm")),
    Sketcher.Constraint("DistanceX", -1, 1, 0, 3, Q("32.75 mm")),
    Sketcher.Constraint("DistanceY", -1, 1, 0, 3, Q("10.25 mm")),
])
pocket10 = body.newObject("PartDesign::Pocket", "Pocket009")
pocket10.Profile = sketch19
pocket10.Length = 4.8
pocket10.Reversed = True

# Sketch on YZ plane
sketch20 = body.newObject("Sketcher::SketchObject", "Sketch019")
sketch20.AttachmentSupport = (doc.getObject("YZ_Plane"), [""])
sketch20.MapMode = "FlatFace"
sketch20.AttachmentOffset = App.Placement(App.Vector(0, 0, -55), App.Rotation())
sketch20.addGeometry(Part.Circle(App.Vector(32.75, 10.25, 0), App.Vector(0, 0, 1), 2.3), False)
sketch20.addConstraint([
    Sketcher.Constraint("Diameter", 0, Q("4.6 mm")),
    Sketcher.Constraint("DistanceX", -1, 1, 0, 3, Q("32.75 mm")),
    Sketcher.Constraint("DistanceY", -1, 1, 0, 3, Q("10.25 mm")),
])
pocket11 = body.newObject("PartDesign::Pocket", "Pocket010")
pocket11.Profile = sketch20
pocket11.Length = 1.7
pocket11.Reversed = True

# Sketch on XY plane
sketch21 = body.newObject("Sketcher::SketchObject", "Sketch020")
sketch21.AttachmentSupport = (doc.getObject("XY_Plane"), [""])
sketch21.MapMode = "FlatFace"
sketch21.AttachmentOffset = App.Placement(App.Vector(0, 0, 20.9), App.Rotation())
sketch21.addGeometry([
    Part.LineSegment(App.Vector(-7.182915, -13.509098, 0), App.Vector(-9.201643, -17.305773, 0)),
    Part.ArcOfCircle(Part.Circle(App.Vector(0, 0, 0), App.Vector(0, 0, 1), 19.6), math.radians(-118), math.radians(59)),
    Part.LineSegment(App.Vector(10.094746, 16.800479, 0), App.Vector(7.880083, 13.11466, 0)),
    Part.ArcOfCircle(Part.Circle(App.Vector(0, 0, 0), App.Vector(0, 0, 1), 15.3), math.radians(-118), math.radians(59)),
], False)
sketch21.addConstraint([
    Sketcher.Constraint("Coincident", 0, 2, 1, 1),
    Sketcher.Constraint("Coincident", 1, 2, 2, 1),
    Sketcher.Constraint("Coincident", 2, 2, 3, 2),
    Sketcher.Constraint("Coincident", 3, 1, 0, 1),
    Sketcher.Constraint("Coincident", 1, 3, -1, 1),
    Sketcher.Constraint("Coincident", 3, 3, -1, 1),
    Sketcher.Constraint("Radius", 1, Q("19.6 mm")),
    Sketcher.Constraint("Radius", 3, Q("15.3 mm")),
    Sketcher.Constraint("Angle", 0, Q("-118 deg")),
    Sketcher.Constraint("Angle", 2, Q("-121 deg")),
    Sketcher.Constraint("DistanceY", 3, 1, -1, 1, Q("13.509098 mm")),
    Sketcher.Constraint("DistanceY", -1, 1, 1, 2, Q("16.800479 mm")),
])
pocket12 = body.newObject("PartDesign::Pocket", "Pocket011")
pocket12.Profile = sketch21
pocket12.Length = 6.1
pocket12.Reversed = True

# Sketch on XY plane
sketch22 = body.newObject("Sketcher::SketchObject", "Sketch021")
sketch22.AttachmentSupport = (doc.getObject("XY_Plane"), [""])
sketch22.MapMode = "FlatFace"
sketch22.AttachmentOffset = App.Placement(App.Vector(0, 0, 19.5), App.Rotation())
sketch22.addGeometry(Part.Circle(App.Vector(0, 0, 0), App.Vector(0, 0, 1), 3.5), False)
sketch22.addConstraint([
    Sketcher.Constraint("Coincident", 0, 3, -1, 1),
    Sketcher.Constraint("Diameter", 0, Q("7 mm")),
])
pocket13 = body.newObject("PartDesign::Pocket", "Pocket012")
pocket13.Profile = sketch22
pocket13.Length = 10.6
pocket13.Reversed = True

# Sketch on XY plane
sketch23 = body.newObject("Sketcher::SketchObject", "Sketch022")
sketch23.AttachmentSupport = (doc.getObject("XY_Plane"), [""])
sketch23.MapMode = "FlatFace"
sketch23.AttachmentOffset = App.Placement(App.Vector(0, 0, 19.5), App.Rotation())
sketch23.addGeometry(Part.Circle(App.Vector(7, 0, 0), App.Vector(0, 0, 1), 1.7), False)
sketch23.addConstraint([
    Sketcher.Constraint("PointOnObject", 0, 3, -1),
    Sketcher.Constraint("Diameter", 0, Q("3.4 mm")),
    Sketcher.Constraint("DistanceX", -1, 1, 0, 3, Q("7 mm")),
])
pocket14 = body.newObject("PartDesign::Pocket", "Pocket013")
pocket14.Profile = sketch23
pocket14.Length = 10.6
pocket14.Reversed = True

# Sketch on XY plane
sketch24 = body.newObject("Sketcher::SketchObject", "Sketch023")
sketch24.AttachmentSupport = (doc.getObject("XY_Plane"), [""])
sketch24.MapMode = "FlatFace"
sketch24.AttachmentOffset = App.Placement(App.Vector(0, 0, 19.5), App.Rotation())
sketch24.addGeometry(Part.Circle(App.Vector(0, -7, 0), App.Vector(0, 0, 1), 1.7), False)
sketch24.addConstraint([
    Sketcher.Constraint("PointOnObject", 0, 3, -2),
    Sketcher.Constraint("Diameter", 0, Q("3.4 mm")),
    Sketcher.Constraint("DistanceY", 0, 3, -1, 1, Q("7 mm")),
])
pocket15 = body.newObject("PartDesign::Pocket", "Pocket014")
pocket15.Profile = sketch24
pocket15.Length = 10.6
pocket15.Reversed = True

# Sketch on XY plane
sketch25 = body.newObject("Sketcher::SketchObject", "Sketch024")
sketch25.AttachmentSupport = (doc.getObject("XY_Plane"), [""])
sketch25.MapMode = "FlatFace"
sketch25.AttachmentOffset = App.Placement(App.Vector(0, 0, 19.5), App.Rotation())
sketch25.addGeometry(Part.Circle(App.Vector(-7, 0, 0), App.Vector(0, 0, 1), 1.7), False)
sketch25.addConstraint([
    Sketcher.Constraint("PointOnObject", 0, 3, -1),
    Sketcher.Constraint("Diameter", 0, Q("3.4 mm")),
    Sketcher.Constraint("DistanceX", 0, 3, -1, 1, Q("7 mm")),
])
pocket16 = body.newObject("PartDesign::Pocket", "Pocket015")
pocket16.Profile = sketch25
pocket16.Length = 10.6
pocket16.Reversed = True

# Sketch on XY plane
sketch26 = body.newObject("Sketcher::SketchObject", "Sketch025")
sketch26.AttachmentSupport = (doc.getObject("XY_Plane"), [""])
sketch26.MapMode = "FlatFace"
sketch26.AttachmentOffset = App.Placement(App.Vector(0, 0, 19.5), App.Rotation())
sketch26.addGeometry(Part.Circle(App.Vector(0, 7, 0), App.Vector(0, 0, 1), 1.7), False)
sketch26.addConstraint([
    Sketcher.Constraint("PointOnObject", 0, 3, -2),
    Sketcher.Constraint("Diameter", 0, Q("3.4 mm")),
    Sketcher.Constraint("DistanceY", -1, 1, 0, 3, Q("7 mm")),
])
pocket17 = body.newObject("PartDesign::Pocket", "Pocket016")
pocket17.Profile = sketch26
pocket17.Length = 10.6
pocket17.Reversed = True

# Sketch on XY plane
sketch27 = body.newObject("Sketcher::SketchObject", "Sketch026")
sketch27.AttachmentSupport = (doc.getObject("XY_Plane"), [""])
sketch27.MapMode = "FlatFace"
sketch27.AttachmentOffset = App.Placement(App.Vector(0, 0, 19.4), App.Rotation())
sketch27.addGeometry(Part.Circle(App.Vector(7, 0, 0), App.Vector(0, 0, 1), 3.2), False)
sketch27.addConstraint([
    Sketcher.Constraint("PointOnObject", 0, 3, -1),
    Sketcher.Constraint("Diameter", 0, Q("6.4 mm")),
    Sketcher.Constraint("DistanceX", -1, 1, 0, 3, Q("7 mm")),
])
pocket18 = body.newObject("PartDesign::Pocket", "Pocket017")
pocket18.Profile = sketch27
pocket18.Length = 7.6
pocket18.Reversed = True

# Sketch on XY plane
sketch28 = body.newObject("Sketcher::SketchObject", "Sketch027")
sketch28.AttachmentSupport = (doc.getObject("XY_Plane"), [""])
sketch28.MapMode = "FlatFace"
sketch28.AttachmentOffset = App.Placement(App.Vector(0, 0, 19.4), App.Rotation())
sketch28.addGeometry(Part.Circle(App.Vector(0, -7, 0), App.Vector(0, 0, 1), 3.2), False)
sketch28.addConstraint([
    Sketcher.Constraint("PointOnObject", 0, 3, -2),
    Sketcher.Constraint("Diameter", 0, Q("6.4 mm")),
    Sketcher.Constraint("DistanceY", 0, 3, -1, 1, Q("7 mm")),
])
pocket19 = body.newObject("PartDesign::Pocket", "Pocket018")
pocket19.Profile = sketch28
pocket19.Length = 7.6
pocket19.Reversed = True

# Sketch on XY plane
sketch29 = body.newObject("Sketcher::SketchObject", "Sketch028")
sketch29.AttachmentSupport = (doc.getObject("XY_Plane"), [""])
sketch29.MapMode = "FlatFace"
sketch29.AttachmentOffset = App.Placement(App.Vector(0, 0, 19.4), App.Rotation())
sketch29.addGeometry(Part.Circle(App.Vector(-7, 0, 0), App.Vector(0, 0, 1), 3.2), False)
sketch29.addConstraint([
    Sketcher.Constraint("PointOnObject", 0, 3, -1),
    Sketcher.Constraint("Diameter", 0, Q("6.4 mm")),
    Sketcher.Constraint("DistanceX", 0, 3, -1, 1, Q("7 mm")),
])
pocket20 = body.newObject("PartDesign::Pocket", "Pocket019")
pocket20.Profile = sketch29
pocket20.Length = 7.6
pocket20.Reversed = True

# Sketch on XY plane
sketch30 = body.newObject("Sketcher::SketchObject", "Sketch029")
sketch30.AttachmentSupport = (doc.getObject("XY_Plane"), [""])
sketch30.MapMode = "FlatFace"
sketch30.AttachmentOffset = App.Placement(App.Vector(0, 0, 19.4), App.Rotation())
sketch30.addGeometry(Part.Circle(App.Vector(0, 7, 0), App.Vector(0, 0, 1), 3.2), False)
sketch30.addConstraint([
    Sketcher.Constraint("PointOnObject", 0, 3, -2),
    Sketcher.Constraint("Diameter", 0, Q("6.4 mm")),
    Sketcher.Constraint("DistanceY", -1, 1, 0, 3, Q("7 mm")),
])
pocket21 = body.newObject("PartDesign::Pocket", "Pocket020")
pocket21.Profile = sketch30
pocket21.Length = 7.6
pocket21.Reversed = True

doc.recompute()
